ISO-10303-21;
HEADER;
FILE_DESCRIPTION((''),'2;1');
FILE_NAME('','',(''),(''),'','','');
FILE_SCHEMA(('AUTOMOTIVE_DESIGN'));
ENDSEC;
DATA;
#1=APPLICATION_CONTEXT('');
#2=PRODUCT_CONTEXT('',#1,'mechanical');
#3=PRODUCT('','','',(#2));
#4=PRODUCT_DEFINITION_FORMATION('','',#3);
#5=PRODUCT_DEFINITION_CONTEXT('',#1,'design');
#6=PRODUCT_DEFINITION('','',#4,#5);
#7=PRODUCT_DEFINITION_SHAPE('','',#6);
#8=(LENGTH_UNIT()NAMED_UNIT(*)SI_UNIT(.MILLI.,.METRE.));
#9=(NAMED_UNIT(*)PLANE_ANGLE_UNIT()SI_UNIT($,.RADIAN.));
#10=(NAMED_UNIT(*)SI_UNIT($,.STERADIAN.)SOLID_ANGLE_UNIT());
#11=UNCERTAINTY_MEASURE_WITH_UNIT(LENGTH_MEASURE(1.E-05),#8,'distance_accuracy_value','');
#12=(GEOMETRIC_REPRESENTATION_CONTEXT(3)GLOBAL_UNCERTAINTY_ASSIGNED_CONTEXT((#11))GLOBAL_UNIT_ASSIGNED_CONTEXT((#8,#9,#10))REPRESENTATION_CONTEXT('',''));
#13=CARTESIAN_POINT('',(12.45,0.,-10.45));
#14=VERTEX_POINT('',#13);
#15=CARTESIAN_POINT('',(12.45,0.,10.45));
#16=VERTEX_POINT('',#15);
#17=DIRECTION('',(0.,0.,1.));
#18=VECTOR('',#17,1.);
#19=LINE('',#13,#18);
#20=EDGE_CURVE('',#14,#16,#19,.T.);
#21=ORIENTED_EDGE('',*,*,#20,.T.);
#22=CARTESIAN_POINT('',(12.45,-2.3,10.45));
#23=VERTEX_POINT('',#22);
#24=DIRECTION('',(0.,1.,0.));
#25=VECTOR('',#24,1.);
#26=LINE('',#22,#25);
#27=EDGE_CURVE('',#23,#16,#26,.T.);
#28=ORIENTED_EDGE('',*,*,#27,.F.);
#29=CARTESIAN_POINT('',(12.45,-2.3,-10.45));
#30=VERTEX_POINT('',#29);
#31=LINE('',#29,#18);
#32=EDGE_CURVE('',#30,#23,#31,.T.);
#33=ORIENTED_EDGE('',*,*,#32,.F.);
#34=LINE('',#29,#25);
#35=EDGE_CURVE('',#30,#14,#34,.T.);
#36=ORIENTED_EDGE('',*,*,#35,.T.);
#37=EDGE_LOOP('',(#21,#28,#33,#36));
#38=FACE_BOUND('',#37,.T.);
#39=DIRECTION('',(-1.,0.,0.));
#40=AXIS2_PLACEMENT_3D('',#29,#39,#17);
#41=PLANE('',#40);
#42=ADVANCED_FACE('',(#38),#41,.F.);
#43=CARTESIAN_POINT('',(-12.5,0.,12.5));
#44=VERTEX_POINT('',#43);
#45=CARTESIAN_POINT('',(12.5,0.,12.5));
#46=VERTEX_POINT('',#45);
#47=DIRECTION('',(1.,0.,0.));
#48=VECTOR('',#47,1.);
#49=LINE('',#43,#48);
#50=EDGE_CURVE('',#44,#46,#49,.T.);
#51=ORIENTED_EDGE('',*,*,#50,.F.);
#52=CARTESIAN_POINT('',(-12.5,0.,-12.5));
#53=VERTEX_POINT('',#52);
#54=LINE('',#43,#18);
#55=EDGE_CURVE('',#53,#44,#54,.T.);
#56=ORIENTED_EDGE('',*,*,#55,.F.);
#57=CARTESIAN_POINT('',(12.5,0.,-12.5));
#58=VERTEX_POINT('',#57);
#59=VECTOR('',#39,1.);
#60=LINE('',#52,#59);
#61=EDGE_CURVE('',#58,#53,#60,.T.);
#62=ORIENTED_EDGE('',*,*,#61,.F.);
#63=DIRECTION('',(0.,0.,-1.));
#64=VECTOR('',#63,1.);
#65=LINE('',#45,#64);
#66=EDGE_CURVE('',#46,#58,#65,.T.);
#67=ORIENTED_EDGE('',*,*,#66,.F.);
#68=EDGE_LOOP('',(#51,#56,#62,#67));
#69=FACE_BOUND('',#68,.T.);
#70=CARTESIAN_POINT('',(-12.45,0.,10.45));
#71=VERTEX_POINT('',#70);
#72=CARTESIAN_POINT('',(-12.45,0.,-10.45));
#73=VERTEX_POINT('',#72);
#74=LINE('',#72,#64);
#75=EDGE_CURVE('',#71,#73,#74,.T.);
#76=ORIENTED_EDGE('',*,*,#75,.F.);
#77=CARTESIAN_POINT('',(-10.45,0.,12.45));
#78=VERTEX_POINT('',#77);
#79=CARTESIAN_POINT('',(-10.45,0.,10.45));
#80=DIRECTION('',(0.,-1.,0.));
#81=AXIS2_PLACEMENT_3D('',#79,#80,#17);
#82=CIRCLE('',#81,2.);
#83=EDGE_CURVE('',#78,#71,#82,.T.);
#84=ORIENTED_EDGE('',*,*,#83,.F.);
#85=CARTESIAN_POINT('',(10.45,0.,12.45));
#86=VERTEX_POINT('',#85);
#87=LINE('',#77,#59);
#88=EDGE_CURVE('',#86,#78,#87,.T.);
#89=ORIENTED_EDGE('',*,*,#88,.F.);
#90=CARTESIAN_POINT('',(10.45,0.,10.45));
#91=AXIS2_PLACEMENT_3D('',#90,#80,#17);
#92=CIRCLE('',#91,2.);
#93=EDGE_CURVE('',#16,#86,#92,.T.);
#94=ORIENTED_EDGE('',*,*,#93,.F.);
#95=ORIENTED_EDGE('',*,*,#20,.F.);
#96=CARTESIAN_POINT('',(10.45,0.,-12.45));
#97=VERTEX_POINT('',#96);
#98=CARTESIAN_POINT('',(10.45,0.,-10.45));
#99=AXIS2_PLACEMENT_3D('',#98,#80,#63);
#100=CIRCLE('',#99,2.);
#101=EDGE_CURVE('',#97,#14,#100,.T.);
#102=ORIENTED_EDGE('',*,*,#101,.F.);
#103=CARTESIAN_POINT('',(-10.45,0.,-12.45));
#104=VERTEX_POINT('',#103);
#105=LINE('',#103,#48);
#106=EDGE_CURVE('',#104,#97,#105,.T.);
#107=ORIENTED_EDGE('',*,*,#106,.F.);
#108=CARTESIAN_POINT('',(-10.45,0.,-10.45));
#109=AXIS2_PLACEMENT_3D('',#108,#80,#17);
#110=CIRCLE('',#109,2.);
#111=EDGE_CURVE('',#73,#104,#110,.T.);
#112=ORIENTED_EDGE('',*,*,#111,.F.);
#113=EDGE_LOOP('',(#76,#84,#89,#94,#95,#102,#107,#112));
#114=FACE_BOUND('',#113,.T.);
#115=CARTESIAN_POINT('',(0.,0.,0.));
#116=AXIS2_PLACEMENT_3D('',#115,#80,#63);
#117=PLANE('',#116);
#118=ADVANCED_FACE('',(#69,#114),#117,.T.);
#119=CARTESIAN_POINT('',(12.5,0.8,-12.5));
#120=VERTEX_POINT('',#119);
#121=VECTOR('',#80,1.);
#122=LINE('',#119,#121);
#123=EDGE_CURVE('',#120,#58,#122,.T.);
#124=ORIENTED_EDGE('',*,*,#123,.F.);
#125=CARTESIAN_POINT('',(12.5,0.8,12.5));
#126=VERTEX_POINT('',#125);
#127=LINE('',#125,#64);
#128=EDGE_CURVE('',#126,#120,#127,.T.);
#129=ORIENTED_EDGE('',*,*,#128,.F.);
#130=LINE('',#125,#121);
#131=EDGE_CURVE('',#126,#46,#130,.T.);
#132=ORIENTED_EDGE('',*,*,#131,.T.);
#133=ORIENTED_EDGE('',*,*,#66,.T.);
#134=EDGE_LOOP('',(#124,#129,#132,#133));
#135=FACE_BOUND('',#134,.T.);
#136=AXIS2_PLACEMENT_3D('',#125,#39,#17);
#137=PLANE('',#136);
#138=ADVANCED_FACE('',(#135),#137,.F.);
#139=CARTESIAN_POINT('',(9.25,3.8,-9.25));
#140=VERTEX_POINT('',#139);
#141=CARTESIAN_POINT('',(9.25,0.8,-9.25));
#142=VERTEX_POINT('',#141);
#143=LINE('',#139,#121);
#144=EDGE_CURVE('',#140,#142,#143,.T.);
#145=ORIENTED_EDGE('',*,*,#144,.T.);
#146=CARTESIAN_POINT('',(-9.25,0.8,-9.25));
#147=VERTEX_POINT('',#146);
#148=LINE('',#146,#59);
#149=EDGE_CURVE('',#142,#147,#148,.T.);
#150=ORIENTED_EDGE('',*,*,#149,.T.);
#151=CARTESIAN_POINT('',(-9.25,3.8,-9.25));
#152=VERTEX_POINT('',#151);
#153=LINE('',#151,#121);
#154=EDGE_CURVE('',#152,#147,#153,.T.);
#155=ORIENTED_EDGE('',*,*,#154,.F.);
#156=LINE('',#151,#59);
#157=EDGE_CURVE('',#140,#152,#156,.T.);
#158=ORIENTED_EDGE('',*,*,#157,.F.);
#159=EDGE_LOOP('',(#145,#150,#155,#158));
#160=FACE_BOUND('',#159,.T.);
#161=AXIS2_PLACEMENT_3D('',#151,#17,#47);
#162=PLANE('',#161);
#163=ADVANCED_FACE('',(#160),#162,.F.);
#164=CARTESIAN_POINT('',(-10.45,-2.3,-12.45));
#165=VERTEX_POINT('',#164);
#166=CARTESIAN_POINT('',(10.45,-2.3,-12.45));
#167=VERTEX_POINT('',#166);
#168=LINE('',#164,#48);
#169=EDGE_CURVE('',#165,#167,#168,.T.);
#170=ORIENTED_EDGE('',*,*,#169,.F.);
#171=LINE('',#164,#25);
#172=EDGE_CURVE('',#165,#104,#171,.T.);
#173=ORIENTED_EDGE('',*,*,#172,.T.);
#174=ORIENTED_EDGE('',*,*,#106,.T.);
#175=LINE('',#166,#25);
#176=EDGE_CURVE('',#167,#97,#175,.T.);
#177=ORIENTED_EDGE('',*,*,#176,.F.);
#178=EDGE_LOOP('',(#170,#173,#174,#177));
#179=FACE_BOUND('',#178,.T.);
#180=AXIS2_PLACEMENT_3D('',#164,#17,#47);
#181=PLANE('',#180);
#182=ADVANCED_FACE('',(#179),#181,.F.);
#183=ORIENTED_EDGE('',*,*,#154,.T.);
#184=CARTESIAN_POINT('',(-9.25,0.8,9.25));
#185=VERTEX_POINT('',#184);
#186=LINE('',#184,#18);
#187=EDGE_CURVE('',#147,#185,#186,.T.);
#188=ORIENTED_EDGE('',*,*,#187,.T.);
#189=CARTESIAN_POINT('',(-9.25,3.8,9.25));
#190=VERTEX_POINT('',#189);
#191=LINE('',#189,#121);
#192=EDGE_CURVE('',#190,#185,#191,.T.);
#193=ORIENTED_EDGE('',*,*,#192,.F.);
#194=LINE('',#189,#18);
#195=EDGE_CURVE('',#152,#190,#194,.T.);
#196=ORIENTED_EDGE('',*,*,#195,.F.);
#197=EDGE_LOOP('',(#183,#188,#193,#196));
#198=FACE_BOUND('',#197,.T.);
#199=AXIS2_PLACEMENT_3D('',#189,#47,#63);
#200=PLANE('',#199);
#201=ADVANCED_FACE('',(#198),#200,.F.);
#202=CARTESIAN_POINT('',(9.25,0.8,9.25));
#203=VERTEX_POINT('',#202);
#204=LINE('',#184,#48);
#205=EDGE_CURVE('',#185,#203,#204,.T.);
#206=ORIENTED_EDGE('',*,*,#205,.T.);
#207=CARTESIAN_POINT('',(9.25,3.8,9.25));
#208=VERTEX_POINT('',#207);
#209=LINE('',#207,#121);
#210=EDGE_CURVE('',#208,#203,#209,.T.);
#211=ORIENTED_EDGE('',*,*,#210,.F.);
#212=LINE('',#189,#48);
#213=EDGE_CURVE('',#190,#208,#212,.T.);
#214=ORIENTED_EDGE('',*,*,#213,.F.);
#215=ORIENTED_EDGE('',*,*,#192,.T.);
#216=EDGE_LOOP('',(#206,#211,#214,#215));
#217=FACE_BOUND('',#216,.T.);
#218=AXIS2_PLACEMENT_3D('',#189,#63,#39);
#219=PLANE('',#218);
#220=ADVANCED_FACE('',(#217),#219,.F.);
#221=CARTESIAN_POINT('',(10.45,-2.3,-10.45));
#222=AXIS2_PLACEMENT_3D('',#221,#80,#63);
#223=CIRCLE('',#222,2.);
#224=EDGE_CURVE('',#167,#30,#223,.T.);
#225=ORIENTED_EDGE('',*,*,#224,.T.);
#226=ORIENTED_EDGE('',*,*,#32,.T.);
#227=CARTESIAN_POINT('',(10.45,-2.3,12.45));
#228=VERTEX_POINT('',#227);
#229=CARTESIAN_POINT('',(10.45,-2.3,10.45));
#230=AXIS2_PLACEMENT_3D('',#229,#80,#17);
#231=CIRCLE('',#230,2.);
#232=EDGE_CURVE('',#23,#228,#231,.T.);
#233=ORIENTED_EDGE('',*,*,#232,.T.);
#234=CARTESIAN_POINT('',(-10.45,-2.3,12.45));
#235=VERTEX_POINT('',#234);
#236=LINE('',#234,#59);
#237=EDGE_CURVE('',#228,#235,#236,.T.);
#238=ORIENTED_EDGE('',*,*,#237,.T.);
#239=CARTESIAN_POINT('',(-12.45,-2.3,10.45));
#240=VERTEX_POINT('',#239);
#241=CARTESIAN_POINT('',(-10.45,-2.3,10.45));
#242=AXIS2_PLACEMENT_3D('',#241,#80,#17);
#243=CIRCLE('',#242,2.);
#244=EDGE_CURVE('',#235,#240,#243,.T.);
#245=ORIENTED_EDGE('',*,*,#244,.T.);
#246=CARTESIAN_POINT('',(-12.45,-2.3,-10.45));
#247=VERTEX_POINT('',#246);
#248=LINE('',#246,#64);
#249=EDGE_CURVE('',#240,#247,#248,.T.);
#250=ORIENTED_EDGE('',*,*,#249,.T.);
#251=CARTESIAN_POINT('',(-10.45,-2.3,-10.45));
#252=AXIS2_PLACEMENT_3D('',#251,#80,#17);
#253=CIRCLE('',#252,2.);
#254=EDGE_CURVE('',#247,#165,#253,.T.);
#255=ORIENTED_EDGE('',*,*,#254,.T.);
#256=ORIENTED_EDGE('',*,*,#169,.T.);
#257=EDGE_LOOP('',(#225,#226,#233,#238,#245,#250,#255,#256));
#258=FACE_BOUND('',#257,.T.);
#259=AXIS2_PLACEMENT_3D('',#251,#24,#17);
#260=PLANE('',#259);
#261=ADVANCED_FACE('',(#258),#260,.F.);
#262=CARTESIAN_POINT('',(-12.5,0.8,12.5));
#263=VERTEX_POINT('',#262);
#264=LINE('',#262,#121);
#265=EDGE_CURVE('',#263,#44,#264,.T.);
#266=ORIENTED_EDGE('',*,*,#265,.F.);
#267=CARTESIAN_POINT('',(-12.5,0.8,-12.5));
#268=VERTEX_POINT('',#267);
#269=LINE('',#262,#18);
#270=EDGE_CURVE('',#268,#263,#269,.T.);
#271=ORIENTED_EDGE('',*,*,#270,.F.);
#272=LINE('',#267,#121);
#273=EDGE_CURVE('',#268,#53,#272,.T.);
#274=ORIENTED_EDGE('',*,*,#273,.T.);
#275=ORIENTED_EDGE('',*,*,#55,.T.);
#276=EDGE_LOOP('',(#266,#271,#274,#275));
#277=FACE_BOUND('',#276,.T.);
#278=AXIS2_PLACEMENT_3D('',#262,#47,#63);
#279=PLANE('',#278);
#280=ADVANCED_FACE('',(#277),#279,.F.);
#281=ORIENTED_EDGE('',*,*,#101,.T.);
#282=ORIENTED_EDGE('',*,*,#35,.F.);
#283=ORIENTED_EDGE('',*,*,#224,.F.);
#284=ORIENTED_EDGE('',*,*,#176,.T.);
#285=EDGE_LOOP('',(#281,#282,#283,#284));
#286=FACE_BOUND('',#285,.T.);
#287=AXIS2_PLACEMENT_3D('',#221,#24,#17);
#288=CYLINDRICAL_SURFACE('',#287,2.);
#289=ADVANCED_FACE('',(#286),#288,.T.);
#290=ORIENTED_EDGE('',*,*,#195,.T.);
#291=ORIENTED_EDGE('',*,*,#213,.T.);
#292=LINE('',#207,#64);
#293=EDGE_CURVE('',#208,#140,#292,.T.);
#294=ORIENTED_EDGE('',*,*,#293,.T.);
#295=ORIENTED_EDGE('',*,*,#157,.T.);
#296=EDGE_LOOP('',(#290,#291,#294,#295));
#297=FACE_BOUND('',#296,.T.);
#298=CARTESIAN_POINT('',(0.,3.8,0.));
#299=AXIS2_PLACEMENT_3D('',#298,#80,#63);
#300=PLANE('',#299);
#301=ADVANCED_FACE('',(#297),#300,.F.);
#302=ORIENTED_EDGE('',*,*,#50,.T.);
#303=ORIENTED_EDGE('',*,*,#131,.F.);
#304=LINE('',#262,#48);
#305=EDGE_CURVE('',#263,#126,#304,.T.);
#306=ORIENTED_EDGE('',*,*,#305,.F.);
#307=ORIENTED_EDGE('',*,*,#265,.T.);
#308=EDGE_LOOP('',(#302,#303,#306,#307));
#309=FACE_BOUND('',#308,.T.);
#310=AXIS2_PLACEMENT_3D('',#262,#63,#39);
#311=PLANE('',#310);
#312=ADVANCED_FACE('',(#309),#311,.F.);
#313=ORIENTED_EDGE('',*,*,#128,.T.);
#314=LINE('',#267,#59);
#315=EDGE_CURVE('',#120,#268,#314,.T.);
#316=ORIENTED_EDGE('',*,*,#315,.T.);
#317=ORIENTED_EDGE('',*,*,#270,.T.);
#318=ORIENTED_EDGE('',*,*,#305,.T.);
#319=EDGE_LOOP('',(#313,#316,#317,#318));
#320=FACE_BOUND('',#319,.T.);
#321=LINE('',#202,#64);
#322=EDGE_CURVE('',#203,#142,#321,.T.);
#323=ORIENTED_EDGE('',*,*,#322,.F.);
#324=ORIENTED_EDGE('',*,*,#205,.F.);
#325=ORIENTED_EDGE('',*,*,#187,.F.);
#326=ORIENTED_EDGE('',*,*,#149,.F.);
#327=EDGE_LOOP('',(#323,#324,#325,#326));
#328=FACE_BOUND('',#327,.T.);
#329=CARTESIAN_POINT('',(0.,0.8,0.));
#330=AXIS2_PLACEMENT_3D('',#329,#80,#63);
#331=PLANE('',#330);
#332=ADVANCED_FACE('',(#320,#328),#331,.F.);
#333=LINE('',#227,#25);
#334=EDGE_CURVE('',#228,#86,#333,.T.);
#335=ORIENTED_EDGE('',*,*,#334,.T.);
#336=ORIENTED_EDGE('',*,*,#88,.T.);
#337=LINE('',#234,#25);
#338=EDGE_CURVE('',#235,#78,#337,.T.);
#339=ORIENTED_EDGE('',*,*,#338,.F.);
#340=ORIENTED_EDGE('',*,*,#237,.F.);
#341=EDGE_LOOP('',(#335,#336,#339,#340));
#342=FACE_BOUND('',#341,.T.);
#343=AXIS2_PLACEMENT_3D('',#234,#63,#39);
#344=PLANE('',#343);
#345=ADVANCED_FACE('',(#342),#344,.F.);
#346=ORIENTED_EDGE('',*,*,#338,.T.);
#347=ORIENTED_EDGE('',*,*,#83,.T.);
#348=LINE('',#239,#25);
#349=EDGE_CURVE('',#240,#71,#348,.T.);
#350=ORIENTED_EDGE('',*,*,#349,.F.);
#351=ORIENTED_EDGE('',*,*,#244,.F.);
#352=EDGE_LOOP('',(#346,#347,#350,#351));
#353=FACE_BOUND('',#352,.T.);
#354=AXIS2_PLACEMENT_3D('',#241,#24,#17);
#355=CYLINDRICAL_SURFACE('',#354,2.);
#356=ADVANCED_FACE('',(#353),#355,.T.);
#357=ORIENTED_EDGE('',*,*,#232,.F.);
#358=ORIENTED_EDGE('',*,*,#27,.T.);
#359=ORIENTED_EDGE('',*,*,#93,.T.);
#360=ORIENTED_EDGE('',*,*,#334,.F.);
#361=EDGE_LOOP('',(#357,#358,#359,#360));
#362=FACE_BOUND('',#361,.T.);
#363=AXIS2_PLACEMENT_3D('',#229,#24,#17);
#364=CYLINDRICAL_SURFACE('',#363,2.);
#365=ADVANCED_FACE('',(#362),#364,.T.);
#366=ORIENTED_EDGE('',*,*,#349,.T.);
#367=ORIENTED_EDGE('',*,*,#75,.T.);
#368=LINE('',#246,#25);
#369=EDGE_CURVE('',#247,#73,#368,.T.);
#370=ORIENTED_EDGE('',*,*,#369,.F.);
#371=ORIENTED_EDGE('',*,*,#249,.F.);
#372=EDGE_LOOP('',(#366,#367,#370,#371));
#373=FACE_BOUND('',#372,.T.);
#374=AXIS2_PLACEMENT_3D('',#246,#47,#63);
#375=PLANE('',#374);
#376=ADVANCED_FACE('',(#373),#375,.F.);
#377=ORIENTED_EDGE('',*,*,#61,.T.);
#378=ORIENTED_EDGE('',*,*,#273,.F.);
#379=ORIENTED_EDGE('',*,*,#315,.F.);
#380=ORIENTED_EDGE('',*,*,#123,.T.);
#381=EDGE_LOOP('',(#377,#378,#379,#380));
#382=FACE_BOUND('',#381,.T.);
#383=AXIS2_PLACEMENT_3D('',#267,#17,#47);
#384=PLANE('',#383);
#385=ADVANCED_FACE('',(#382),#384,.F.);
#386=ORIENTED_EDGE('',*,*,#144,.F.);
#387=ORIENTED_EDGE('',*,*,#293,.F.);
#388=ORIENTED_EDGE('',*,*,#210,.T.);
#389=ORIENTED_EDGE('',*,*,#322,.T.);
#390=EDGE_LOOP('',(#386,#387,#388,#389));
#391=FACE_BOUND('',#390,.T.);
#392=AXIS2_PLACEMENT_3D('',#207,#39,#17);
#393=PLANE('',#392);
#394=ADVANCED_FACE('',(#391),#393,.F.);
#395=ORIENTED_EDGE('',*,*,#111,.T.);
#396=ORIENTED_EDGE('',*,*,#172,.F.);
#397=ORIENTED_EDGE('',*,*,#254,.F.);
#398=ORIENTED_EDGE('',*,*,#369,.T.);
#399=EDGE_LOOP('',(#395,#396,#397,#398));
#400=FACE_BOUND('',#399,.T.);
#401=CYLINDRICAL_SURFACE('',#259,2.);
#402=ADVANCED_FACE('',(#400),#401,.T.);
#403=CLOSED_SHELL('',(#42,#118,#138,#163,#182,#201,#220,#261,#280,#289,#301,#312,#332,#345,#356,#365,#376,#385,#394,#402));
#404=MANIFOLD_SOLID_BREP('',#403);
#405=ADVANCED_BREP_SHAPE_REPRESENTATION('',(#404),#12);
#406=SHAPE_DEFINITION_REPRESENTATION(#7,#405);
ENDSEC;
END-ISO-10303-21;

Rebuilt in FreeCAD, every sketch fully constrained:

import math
import FreeCAD as App
import Part
import Sketcher
Q = App.Units.Quantity

doc = App.newDocument("Part")
params = doc.addObject("Spreadsheet::Sheet", "Params")
for row, (alias, value) in enumerate([
    ("sketch1_width", "25 mm"),
    ("pad1_length", "0.8 mm"),
    ("sketch2_width", "18.5 mm"),
    ("pad2_length", "3 mm"),
    ("sketch3_radius", "2 mm"),
    ("sketch3_width", "20.9 mm"),
    ("pad3_length", "2.3 mm"),
], start=1):
    params.set(f"A{row}", alias)
    params.set(f"B{row}", "=" + value)
    params.setAlias(f"B{row}", alias)

body = doc.addObject("PartDesign::Body", "Body")

# Sketch on XZ plane
sketch1 = body.newObject("Sketcher::SketchObject", "Sketch")
sketch1.AttachmentSupport = (doc.getObject("XZ_Plane"), [""])
sketch1.MapMode = "FlatFace"
sketch1.addGeometry([
    Part.LineSegment(App.Vector(-12, -12, 0), App.Vector(-12, 12, 0)),
    Part.LineSegment(App.Vector(-12, 12, 0), App.Vector(12, 12, 0)),
    Part.LineSegment(App.Vector(12, 12, 0), App.Vector(12, -12, 0)),
    Part.LineSegment(App.Vector(12, -12, 0), App.Vector(-12, -12, 0)),
], False)
sketch1.addConstraint([
    Sketcher.Constraint("Coincident", 0, 2, 1, 1),
    Sketcher.Constraint("Coincident", 1, 2, 2, 1),
    Sketcher.Constraint("Coincident", 2, 2, 3, 1),
    Sketcher.Constraint("Coincident", 3, 2, 0, 1),
    Sketcher.Constraint("Vertical", 0),
    Sketcher.Constraint("Horizontal", 1),
    Sketcher.Constraint("Vertical", 2),
    Sketcher.Constraint("Horizontal", 3),
    Sketcher.Constraint("Symmetric", 0, 2, 2, 2, -1, 1),
    Sketcher.Constraint("Equal", 3, 0),
    Sketcher.Constraint("DistanceX", 1, 1, 1, 2, Q("25 mm")),
])
sketch1.setExpression("Constraints[10]", "Params.sketch1_width")
pad1 = body.newObject("PartDesign::Pad", "Pad")
pad1.Profile = sketch1
pad1.setExpression("Length", "Params.pad1_length")
pad1.Reversed = True

# Sketch on XZ plane
sketch2 = body.newObject("Sketcher::SketchObject", "Sketch001")
sketch2.AttachmentSupport = (doc.getObject("XZ_Plane"), [""])
sketch2.MapMode = "FlatFace"
sketch2.AttachmentOffset = App.Placement(App.Vector(0, 0, -0.8), App.Rotation())
sketch2.addGeometry([
    Part.LineSegment(App.Vector(-9, -9, 0), App.Vector(-9, 9, 0)),
    Part.LineSegment(App.Vector(-9, 9, 0), App.Vector(9, 9, 0)),
    Part.LineSegment(App.Vector(9, 9, 0), App.Vector(9, -9, 0)),
    Part.LineSegment(App.Vector(9, -9, 0), App.Vector(-9, -9, 0)),
], False)
sketch2.addConstraint([
    Sketcher.Constraint("Coincident", 0, 2, 1, 1),
    Sketcher.Constraint("Coincident", 1, 2, 2, 1),
    Sketcher.Constraint("Coincident", 2, 2, 3, 1),
    Sketcher.Constraint("Coincident", 3, 2, 0, 1),
    Sketcher.Constraint("Vertical", 0),
    Sketcher.Constraint("Horizontal", 1),
    Sketcher.Constraint("Vertical", 2),
    Sketcher.Constraint("Horizontal", 3),
    Sketcher.Constraint("Symmetric", 0, 2, 2, 2, -1, 1),
    Sketcher.Constraint("Equal", 3, 0),
    Sketcher.Constraint("DistanceX", 1, 1, 1, 2, Q("18.5 mm")),
])
sketch2.setExpression("Constraints[10]", "Params.sketch2_width")
pad2 = body.newObject("PartDesign::Pad", "Pad001")
pad2.Profile = sketch2
pad2.setExpression("Length", "Params.pad2_length")
pad2.Reversed = True

# Sketch on XZ plane
sketch3 = body.newObject("Sketcher::SketchObject", "Sketch002")
sketch3.AttachmentSupport = (doc.getObject("XZ_Plane"), [""])
sketch3.MapMode = "FlatFace"
sketch3.addGeometry([
    Part.LineSegment(App.Vector(-10.4, -12.4, 0), App.Vector(10.4, -12.4, 0)),  # 0
    Part.ArcOfCircle(Part.Circle(App.Vector(10.4, -10.4, 0), App.Vector(0, 0, 1), 2), math.radians(-90), math.radians(0)),  # 1
    Part.LineSegment(App.Vector(12.4, -10.4, 0), App.Vector(12.4, 10.4, 0)),  # 2
    Part.ArcOfCircle(Part.Circle(App.Vector(10.4, 10.4, 0), App.Vector(0, 0, 1), 2), math.radians(0), math.radians(90)),  # 3
    Part.LineSegment(App.Vector(10.4, 12.4, 0), App.Vector(-10.4, 12.4, 0)),  # 4
    Part.ArcOfCircle(Part.Circle(App.Vector(-10.4, 10.4, 0), App.Vector(0, 0, 1), 2), math.radians(90), math.radians(180)),  # 5
    Part.LineSegment(App.Vector(-12.4, 10.4, 0), App.Vector(-12.4, -10.4, 0)),  # 6
    Part.ArcOfCircle(Part.Circle(App.Vector(-10.4, -10.4, 0), App.Vector(0, 0, 1), 2), math.radians(-180), math.radians(-90)),  # 7
], False)
sketch3.addConstraint([
    Sketcher.Constraint("Tangent", 0, 2, 1, 1),
    Sketcher.Constraint("Tangent", 1, 2, 2, 1),
    Sketcher.Constraint("Tangent", 2, 2, 3, 1),
    Sketcher.Constraint("Tangent", 3, 2, 4, 1),
    Sketcher.Constraint("Tangent", 4, 2, 5, 1),
    Sketcher.Constraint("Tangent", 5, 2, 6, 1),
    Sketcher.Constraint("Tangent", 6, 2, 7, 1),
    Sketcher.Constraint("Tangent", 7, 2, 0, 1),
    Sketcher.Constraint("Horizontal", 0),
    Sketcher.Constraint("Vertical", 2),
    Sketcher.Constraint("Horizontal", 4),
    Sketcher.Constraint("Vertical", 6),
    Sketcher.Constraint("Equal", 1, 3),
    Sketcher.Constraint("Equal", 3, 5),
    Sketcher.Constraint("Equal", 5, 7),
    Sketcher.Constraint("Symmetric", 1, 3, 5, 3, -1, 1),
    Sketcher.Constraint("Equal", 4, 2),
    Sketcher.Constraint("Radius", 1, Q("2 mm")),
    Sketcher.Constraint("DistanceX", 0, 1, 0, 2, Q("20.9 mm")),
])
sketch3.setExpression("Constraints[17]", "Params.sketch3_radius")
sketch3.setExpression("Constraints[18]", "Params.sketch3_width")
pad3 = body.newObject("PartDesign::Pad", "Pad002")
pad3.Profile = sketch3
pad3.setExpression("Length", "Params.pad3_length")

doc.recompute()
